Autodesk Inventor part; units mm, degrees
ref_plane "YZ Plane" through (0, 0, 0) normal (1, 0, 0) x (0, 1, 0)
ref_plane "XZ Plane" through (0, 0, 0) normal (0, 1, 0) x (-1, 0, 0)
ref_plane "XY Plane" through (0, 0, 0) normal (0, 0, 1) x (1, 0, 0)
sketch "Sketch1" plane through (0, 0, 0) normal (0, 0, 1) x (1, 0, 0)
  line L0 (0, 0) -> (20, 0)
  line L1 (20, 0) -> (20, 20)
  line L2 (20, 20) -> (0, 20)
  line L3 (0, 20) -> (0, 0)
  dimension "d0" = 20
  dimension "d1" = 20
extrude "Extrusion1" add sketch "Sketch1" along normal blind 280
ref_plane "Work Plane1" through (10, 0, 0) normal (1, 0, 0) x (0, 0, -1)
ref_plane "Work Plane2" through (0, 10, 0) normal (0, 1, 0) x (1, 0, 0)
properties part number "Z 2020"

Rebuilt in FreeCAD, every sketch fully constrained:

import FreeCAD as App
import Part
import Sketcher

V = App.Vector
Q = App.Units.Quantity


def add_polygon(sketch, points):
    """Adds a closed chain of lines whose ends are joined by coincident constraints."""
    first, n = sketch.GeometryCount, len(points)
    for a, b in zip(points, points[1:] + points[:1]):
        sketch.addGeometry(Part.LineSegment(App.Vector(*a, 0), App.Vector(*b, 0)), False)
    for i in range(n):
        sketch.addConstraint(Sketcher.Constraint("Coincident", first + i, 2, first + (i + 1) % n, 1))

doc = App.newDocument("Part")
body = doc.addObject("PartDesign::Body", "Body")

# Sketch on XY plane
sketch1 = body.newObject("Sketcher::SketchObject", "Sketch")
sketch1.AttachmentSupport = (doc.getObject("XY_Plane"), [""])
sketch1.MapMode = "FlatFace"
add_polygon(sketch1, [(0, 20), (0, 0), (20, 0), (20, 20)])  # lines 0-3
sketch1.addConstraint(Sketcher.Constraint("Vertical", 0))
sketch1.addConstraint(Sketcher.Constraint("Horizontal", 1))
sketch1.addConstraint(Sketcher.Constraint("Vertical", 2))
sketch1.addConstraint(Sketcher.Constraint("Horizontal", 3))
sketch1.addConstraint(Sketcher.Constraint("Coincident", 0, 2, -1, 1))
sketch1.addConstraint(Sketcher.Constraint("Equal", 3, 0))
sketch1.addConstraint(Sketcher.Constraint("DistanceX", 1, 1, 1, 2, Q("20 mm")))
pad1 = body.newObject("PartDesign::Pad", "Pad")
pad1.Profile = sketch1
pad1.Length = 280

doc.recompute()
